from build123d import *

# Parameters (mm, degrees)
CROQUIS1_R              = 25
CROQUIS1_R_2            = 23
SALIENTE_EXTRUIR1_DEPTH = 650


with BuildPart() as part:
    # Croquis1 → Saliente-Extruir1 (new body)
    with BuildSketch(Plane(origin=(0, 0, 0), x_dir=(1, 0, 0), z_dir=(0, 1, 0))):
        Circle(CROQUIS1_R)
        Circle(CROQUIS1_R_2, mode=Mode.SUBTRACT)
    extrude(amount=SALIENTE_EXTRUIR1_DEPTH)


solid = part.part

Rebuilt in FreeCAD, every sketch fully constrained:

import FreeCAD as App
import Part
import Sketcher
from FreeCAD import Vector
Q = App.Units.Quantity

doc = App.newDocument("Part")
body = doc.addObject("PartDesign::Body", "Body")

# Sketch on XZ plane
sketch1 = body.newObject("Sketcher::SketchObject", "Sketch")
sketch1.AttachmentSupport = (doc.getObject("XZ_Plane"), [""])
sketch1.MapMode = "FlatFace"
sketch1.addGeometry([
    Part.Circle(Vector(0, 0, 0), Vector(0, 0, 1), 25),
    Part.Circle(Vector(0, 0, 0), Vector(0, 0, 1), 23),
], False)
sketch1.addConstraint([
    Sketcher.Constraint("Coincident", 0, 3, -1, 1),
    Sketcher.Constraint("Coincident", 1, 3, -1, 1),
    Sketcher.Constraint("Diameter", 0, Q("50 mm")),
    Sketcher.Constraint("Diameter", 1, Q("46 mm")),
])
pad1 = body.newObject("PartDesign::Pad", "Pad")
pad1.Profile = sketch1
pad1.Length = 650
pad1.Reversed = True

doc.recompute()
